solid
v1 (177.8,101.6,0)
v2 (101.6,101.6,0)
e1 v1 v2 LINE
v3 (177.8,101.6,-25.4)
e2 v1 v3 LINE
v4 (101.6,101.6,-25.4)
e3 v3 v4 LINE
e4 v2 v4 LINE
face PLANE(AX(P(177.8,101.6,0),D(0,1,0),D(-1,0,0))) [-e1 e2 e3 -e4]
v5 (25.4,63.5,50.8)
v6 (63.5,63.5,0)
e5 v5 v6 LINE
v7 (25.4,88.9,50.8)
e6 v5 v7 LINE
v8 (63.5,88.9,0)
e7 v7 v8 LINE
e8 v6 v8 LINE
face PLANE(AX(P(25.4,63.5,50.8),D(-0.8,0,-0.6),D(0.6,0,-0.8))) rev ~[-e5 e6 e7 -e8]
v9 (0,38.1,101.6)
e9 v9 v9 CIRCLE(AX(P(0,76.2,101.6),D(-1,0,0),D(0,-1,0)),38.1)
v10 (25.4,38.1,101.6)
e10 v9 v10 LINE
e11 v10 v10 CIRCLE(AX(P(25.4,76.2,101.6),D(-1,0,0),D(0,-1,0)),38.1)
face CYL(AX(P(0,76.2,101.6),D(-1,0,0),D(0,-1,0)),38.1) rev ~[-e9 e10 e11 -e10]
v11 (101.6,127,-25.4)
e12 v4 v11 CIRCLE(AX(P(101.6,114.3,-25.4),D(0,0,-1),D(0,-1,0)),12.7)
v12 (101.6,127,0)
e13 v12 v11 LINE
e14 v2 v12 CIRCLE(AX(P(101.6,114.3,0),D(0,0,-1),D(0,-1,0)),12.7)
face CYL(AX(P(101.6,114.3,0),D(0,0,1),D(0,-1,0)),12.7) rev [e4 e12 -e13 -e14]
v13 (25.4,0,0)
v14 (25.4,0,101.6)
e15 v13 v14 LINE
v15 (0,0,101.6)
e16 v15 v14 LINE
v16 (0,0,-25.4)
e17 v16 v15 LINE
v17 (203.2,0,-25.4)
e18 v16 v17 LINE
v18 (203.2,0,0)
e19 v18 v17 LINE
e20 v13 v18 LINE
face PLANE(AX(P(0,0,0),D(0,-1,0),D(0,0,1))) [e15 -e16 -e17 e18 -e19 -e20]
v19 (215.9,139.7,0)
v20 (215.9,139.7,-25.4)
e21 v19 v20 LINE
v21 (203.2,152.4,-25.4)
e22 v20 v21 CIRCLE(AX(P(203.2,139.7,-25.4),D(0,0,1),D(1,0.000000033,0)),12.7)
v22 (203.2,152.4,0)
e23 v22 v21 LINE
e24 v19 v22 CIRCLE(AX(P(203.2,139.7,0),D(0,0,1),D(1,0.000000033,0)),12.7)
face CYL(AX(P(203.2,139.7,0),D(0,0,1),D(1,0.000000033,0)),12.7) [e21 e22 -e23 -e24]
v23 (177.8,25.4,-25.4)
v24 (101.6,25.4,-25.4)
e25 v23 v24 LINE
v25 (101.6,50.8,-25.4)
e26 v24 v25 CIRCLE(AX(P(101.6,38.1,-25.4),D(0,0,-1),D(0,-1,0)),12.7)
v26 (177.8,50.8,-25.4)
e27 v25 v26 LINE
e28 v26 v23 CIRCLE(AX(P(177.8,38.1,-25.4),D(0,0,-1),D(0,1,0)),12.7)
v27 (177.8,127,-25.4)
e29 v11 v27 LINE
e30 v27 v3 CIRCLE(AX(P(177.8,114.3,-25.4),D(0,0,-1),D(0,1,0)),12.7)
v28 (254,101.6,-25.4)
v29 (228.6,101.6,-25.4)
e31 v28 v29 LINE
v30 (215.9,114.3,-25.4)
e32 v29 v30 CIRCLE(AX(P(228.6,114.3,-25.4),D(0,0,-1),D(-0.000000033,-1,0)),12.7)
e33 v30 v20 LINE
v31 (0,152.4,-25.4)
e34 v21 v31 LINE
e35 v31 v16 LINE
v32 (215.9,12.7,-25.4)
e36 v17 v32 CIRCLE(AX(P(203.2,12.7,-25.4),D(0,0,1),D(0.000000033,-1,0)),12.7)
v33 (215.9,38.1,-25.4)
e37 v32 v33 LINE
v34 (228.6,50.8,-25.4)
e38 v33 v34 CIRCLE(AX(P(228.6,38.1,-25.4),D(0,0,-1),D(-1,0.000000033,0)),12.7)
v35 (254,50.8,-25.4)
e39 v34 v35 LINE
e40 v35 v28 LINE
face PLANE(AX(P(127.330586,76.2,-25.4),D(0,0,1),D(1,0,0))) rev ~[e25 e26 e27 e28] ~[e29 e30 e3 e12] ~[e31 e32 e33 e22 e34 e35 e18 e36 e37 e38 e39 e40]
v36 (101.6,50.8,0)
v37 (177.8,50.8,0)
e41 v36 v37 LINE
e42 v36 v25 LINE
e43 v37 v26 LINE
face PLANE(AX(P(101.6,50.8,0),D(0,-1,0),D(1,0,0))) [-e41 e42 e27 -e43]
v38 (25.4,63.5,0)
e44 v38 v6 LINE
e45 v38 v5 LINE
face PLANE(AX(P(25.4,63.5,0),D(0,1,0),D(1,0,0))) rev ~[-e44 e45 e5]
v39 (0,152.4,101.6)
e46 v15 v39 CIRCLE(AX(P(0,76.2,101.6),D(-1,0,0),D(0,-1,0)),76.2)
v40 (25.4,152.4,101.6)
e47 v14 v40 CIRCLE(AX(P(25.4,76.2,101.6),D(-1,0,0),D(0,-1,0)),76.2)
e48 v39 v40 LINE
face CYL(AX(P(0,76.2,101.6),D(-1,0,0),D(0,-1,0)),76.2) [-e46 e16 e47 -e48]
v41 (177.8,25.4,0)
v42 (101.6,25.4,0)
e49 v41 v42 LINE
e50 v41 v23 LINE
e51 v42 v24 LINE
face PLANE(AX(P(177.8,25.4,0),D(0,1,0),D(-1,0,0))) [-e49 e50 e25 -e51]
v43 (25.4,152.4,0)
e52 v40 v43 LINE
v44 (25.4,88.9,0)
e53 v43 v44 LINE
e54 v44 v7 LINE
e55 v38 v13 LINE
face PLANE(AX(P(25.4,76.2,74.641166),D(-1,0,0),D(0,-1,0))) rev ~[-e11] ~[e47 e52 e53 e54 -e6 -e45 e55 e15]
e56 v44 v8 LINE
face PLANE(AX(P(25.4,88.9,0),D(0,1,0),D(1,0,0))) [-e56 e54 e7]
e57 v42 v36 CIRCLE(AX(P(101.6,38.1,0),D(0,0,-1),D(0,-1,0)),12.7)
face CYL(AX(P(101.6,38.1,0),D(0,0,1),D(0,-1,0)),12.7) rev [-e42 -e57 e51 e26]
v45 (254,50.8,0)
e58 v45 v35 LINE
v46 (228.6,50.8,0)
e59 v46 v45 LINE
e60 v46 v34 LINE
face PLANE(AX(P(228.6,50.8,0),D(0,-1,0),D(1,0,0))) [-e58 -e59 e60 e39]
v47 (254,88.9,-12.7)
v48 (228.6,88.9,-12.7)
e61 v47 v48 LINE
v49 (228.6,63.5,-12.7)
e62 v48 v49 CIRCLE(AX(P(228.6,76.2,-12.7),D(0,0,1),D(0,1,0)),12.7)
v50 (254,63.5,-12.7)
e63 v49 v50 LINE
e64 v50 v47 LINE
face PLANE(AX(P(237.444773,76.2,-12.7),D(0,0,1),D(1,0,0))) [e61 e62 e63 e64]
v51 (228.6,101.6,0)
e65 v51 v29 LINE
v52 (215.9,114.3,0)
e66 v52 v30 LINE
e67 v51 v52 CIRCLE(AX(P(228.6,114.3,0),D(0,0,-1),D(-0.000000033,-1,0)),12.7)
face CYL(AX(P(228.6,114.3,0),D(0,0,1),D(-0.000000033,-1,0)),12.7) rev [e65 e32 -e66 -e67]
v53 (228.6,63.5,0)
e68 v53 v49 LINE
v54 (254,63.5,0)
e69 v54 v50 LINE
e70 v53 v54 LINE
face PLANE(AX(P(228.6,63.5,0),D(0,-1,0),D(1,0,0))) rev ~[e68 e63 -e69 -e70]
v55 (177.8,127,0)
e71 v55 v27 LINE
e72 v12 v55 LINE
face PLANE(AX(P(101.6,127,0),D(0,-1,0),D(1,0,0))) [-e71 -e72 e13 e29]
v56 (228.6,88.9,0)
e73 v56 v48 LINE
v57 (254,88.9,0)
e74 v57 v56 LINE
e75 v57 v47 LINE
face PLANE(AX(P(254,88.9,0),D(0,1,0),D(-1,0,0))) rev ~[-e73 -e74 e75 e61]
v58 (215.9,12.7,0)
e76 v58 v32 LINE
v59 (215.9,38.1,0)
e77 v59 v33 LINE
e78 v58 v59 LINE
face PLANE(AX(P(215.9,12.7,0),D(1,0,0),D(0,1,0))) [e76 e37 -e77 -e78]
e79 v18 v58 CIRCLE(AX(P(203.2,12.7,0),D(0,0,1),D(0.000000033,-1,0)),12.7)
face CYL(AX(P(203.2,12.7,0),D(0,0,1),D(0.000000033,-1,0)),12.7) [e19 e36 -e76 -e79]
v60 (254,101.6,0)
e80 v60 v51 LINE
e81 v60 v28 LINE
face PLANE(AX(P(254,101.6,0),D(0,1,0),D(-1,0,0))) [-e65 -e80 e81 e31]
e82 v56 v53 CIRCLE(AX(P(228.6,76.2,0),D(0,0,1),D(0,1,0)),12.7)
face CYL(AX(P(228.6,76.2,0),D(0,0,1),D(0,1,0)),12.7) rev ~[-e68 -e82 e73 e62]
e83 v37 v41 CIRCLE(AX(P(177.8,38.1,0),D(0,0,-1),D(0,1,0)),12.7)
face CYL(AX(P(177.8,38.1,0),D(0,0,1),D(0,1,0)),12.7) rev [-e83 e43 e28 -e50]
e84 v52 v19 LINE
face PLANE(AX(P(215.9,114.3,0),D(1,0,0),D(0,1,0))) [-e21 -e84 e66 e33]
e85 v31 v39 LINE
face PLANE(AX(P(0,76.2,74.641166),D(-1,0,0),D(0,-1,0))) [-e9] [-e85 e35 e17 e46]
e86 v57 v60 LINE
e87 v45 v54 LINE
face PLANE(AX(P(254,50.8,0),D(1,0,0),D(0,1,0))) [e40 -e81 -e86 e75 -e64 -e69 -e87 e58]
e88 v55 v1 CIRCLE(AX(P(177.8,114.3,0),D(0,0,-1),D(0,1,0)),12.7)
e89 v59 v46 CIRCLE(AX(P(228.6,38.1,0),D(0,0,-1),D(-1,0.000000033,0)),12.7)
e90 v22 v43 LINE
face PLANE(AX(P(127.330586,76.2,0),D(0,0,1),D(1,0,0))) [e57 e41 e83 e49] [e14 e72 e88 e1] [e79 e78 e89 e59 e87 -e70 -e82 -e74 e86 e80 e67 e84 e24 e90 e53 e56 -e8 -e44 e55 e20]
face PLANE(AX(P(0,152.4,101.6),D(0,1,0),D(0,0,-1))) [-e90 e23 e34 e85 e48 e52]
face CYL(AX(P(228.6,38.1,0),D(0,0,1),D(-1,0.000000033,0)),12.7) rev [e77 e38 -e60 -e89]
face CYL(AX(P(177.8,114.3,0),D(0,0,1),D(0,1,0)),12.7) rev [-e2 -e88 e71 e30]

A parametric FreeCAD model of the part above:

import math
import FreeCAD as App
import Part
import Sketcher
from FreeCAD import Vector
Q = App.Units.Quantity


def add_polygon(sketch, points):
    """Adds a closed chain of lines whose ends are joined by coincident constraints."""
    first, n = sketch.GeometryCount, len(points)
    for a, b in zip(points, points[1:] + points[:1]):
        sketch.addGeometry(Part.LineSegment(App.Vector(*a, 0), App.Vector(*b, 0)), False)
    for i in range(n):
        sketch.addConstraint(Sketcher.Constraint("Coincident", first + i, 2, first + (i + 1) % n, 1))

doc = App.newDocument("Part")
params = doc.addObject("Spreadsheet::Sheet", "Params")
for row, (alias, value) in enumerate([
    ("sketch1_radius", "0.5 in"),
    ("sketch1_width", "8 in"),
    ("sketch1_width2", "1 in"),
    ("sketch1_width3", "3 in"),
    ("sketch1_height", "6 in"),
    ("pad1_length", "1 in"),
    ("sketch2_diameter", "3 in"),
    ("sketch2_radius", "3 in"),
    ("sketch2_height", "4 in"),
    ("pad2_length", "1 in"),
    ("sketch3_radius", "0.5 in"),
    ("pocket1_length", "0.5 in"),
    ("sketch4_height", "1 in"),
    ("sketch4_width", "1.5 in"),
    ("pad3_length", "2 in"),
    ("sketch5_height", "2 in"),
    ("sketch5_width", "1.5 in"),
    ("pocket2_length", "1 in"),
], start=1):
    params.set(f"A{row}", alias)
    params.set(f"B{row}", "=" + value)
    params.setAlias(f"B{row}", alias)

body = doc.addObject("PartDesign::Body", "Body")

# Sketch on XY plane
sketch1 = body.newObject("Sketcher::SketchObject", "Sketch")
sketch1.AttachmentSupport = (doc.getObject("XY_Plane"), [""])
sketch1.MapMode = "FlatFace"
sketch1.addGeometry([
    Part.LineSegment(Vector(0, 152, 0), Vector(0, 0, 0)),  # 0
    Part.LineSegment(Vector(0, 0, 0), Vector(203, 0, 0)),  # 1
    Part.ArcOfCircle(Part.Circle(Vector(203, 13, 0), Vector(0, 0, 1), 13), math.radians(-90), math.radians(0)),  # 2
    Part.LineSegment(Vector(216, 13, 0), Vector(216, 38, 0)),  # 3
    Part.ArcOfCircle(Part.Circle(Vector(229, 38, 0), Vector(0, 0, 1), 13), math.radians(90), math.radians(180)),  # 4
    Part.LineSegment(Vector(229, 51, 0), Vector(254, 51, 0)),  # 5
    Part.LineSegment(Vector(254, 51, 0), Vector(254, 102, 0)),  # 6
    Part.LineSegment(Vector(254, 102, 0), Vector(229, 102, 0)),  # 7
    Part.ArcOfCircle(Part.Circle(Vector(229, 114, 0), Vector(0, 0, 1), 13), math.radians(-180), math.radians(-90)),  # 8
    Part.LineSegment(Vector(216, 114, 0), Vector(216, 140, 0)),  # 9
    Part.ArcOfCircle(Part.Circle(Vector(203, 140, 0), Vector(0, 0, 1), 13), math.radians(0), math.radians(90)),  # 10
    Part.LineSegment(Vector(203, 152, 0), Vector(0, 152, 0)),  # 11
    Part.LineSegment(Vector(102, 51, 0), Vector(178, 51, 0)),  # 12
    Part.ArcOfCircle(Part.Circle(Vector(178, 38, 0), Vector(0, 0, 1), 13), math.radians(-90), math.radians(90)),  # 13
    Part.LineSegment(Vector(178, 25, 0), Vector(102, 25, 0)),  # 14
    Part.ArcOfCircle(Part.Circle(Vector(102, 38, 0), Vector(0, 0, 1), 13), math.radians(90), math.radians(270)),  # 15
    Part.LineSegment(Vector(102, 127, 0), Vector(178, 127, 0)),  # 16
    Part.ArcOfCircle(Part.Circle(Vector(178, 114, 0), Vector(0, 0, 1), 13), math.radians(-90), math.radians(90)),  # 17
    Part.LineSegment(Vector(178, 102, 0), Vector(102, 102, 0)),  # 18
    Part.ArcOfCircle(Part.Circle(Vector(102, 114, 0), Vector(0, 0, 1), 13), math.radians(90), math.radians(270)),  # 19
], False)
sketch1.addConstraint([
    Sketcher.Constraint("Coincident", 0, 2, 1, 1),
    Sketcher.Constraint("Tangent", 1, 2, 2, 1),
    Sketcher.Constraint("Tangent", 2, 2, 3, 1),
    Sketcher.Constraint("Tangent", 3, 2, 4, 2),
    Sketcher.Constraint("Tangent", 4, 1, 5, 1),
    Sketcher.Constraint("Coincident", 5, 2, 6, 1),
    Sketcher.Constraint("Coincident", 6, 2, 7, 1),
    Sketcher.Constraint("Tangent", 7, 2, 8, 2),
    Sketcher.Constraint("Tangent", 8, 1, 9, 1),
    Sketcher.Constraint("Tangent", 9, 2, 10, 1),
    Sketcher.Constraint("Tangent", 10, 2, 11, 1),
    Sketcher.Constraint("Coincident", 11, 2, 0, 1),
    Sketcher.Constraint("Tangent", 12, 2, 13, 2),
    Sketcher.Constraint("Tangent", 13, 1, 14, 1),
    Sketcher.Constraint("Tangent", 14, 2, 15, 2),
    Sketcher.Constraint("Tangent", 15, 1, 12, 1),
    Sketcher.Constraint("Tangent", 16, 2, 17, 2),
    Sketcher.Constraint("Tangent", 17, 1, 18, 1),
    Sketcher.Constraint("Tangent", 18, 2, 19, 2),
    Sketcher.Constraint("Tangent", 19, 1, 16, 1),
    Sketcher.Constraint("Vertical", 0),
    Sketcher.Constraint("Horizontal", 1),
    Sketcher.Constraint("Vertical", 3),
    Sketcher.Constraint("Horizontal", 5),
    Sketcher.Constraint("Vertical", 6),
    Sketcher.Constraint("Horizontal", 7),
    Sketcher.Constraint("Vertical", 9),
    Sketcher.Constraint("Horizontal", 11),
    Sketcher.Constraint("Horizontal", 12),
    Sketcher.Constraint("Horizontal", 14),
    Sketcher.Constraint("Horizontal", 16),
    Sketcher.Constraint("Horizontal", 18),
    Sketcher.Constraint("Coincident", 0, 2, -1, 1),
    Sketcher.Constraint("Equal", 2, 4),
    Sketcher.Constraint("Equal", 4, 8),
    Sketcher.Constraint("Equal", 8, 10),
    Sketcher.Constraint("Equal", 10, 13),
    Sketcher.Constraint("Equal", 15, 17),
    Sketcher.Constraint("Horizontal", 4, 3, 13, 3),
    Sketcher.Constraint("Horizontal", 8, 3, 17, 3),
    Sketcher.Constraint("Vertical", 4, 3, 8, 3),
    Sketcher.Constraint("Vertical", 13, 3, 17, 3),
    Sketcher.Constraint("Vertical", 15, 3, 19, 3),
    Sketcher.Constraint("Equal", 7, 3),
    Sketcher.Constraint("Equal", 3, 9),
    Sketcher.Constraint("Radius", 2, Q("0.5 in")),
    Sketcher.Constraint("DistanceX", 1, 1, 1, 2, Q("8 in")),
    Sketcher.Constraint("DistanceX", 5, 1, 5, 2, Q("1 in")),
    Sketcher.Constraint("DistanceX", 12, 1, 12, 2, Q("3 in")),
    Sketcher.Constraint("DistanceY", 0, 2, 0, 1, Q("6 in")),
    Sketcher.Constraint("DistanceX", -1, 1, 13, 3, Q("7 in")),
])
sketch1.setExpression("Constraints[45]", "Params.sketch1_radius")
sketch1.setExpression("Constraints[46]", "Params.sketch1_width")
sketch1.setExpression("Constraints[47]", "Params.sketch1_width2")
sketch1.setExpression("Constraints[48]", "Params.sketch1_width3")
sketch1.setExpression("Constraints[49]", "Params.sketch1_height")
pad1 = body.newObject("PartDesign::Pad", "Pad")
pad1.Profile = sketch1
pad1.setExpression("Length", "Params.pad1_length")
pad1.Reversed = True

# Sketch on YZ plane
sketch2 = body.newObject("Sketcher::SketchObject", "Sketch001")
sketch2.AttachmentSupport = (doc.getObject("YZ_Plane"), [""])
sketch2.MapMode = "FlatFace"
sketch2.addGeometry([
    Part.LineSegment(Vector(152, 102, 0), Vector(152, 0, 0)),  # 0
    Part.LineSegment(Vector(152, 0, 0), Vector(0, 0, 0)),  # 1
    Part.LineSegment(Vector(0, 0, 0), Vector(0, 102, 0)),  # 2
    Part.ArcOfCircle(Part.Circle(Vector(76, 102, 0), Vector(0, 0, 1), 76), math.radians(0), math.radians(180)),  # 3
    Part.Circle(Vector(76, 102, 0), Vector(0, 0, 1), 38),  # 4
], False)
sketch2.addConstraint([
    Sketcher.Constraint("Coincident", 0, 2, 1, 1),
    Sketcher.Constraint("Coincident", 1, 2, 2, 1),
    Sketcher.Constraint("Tangent", 2, 2, 3, 2),
    Sketcher.Constraint("Tangent", 3, 1, 0, 1),
    Sketcher.Constraint("Vertical", 0),
    Sketcher.Constraint("Horizontal", 1),
    Sketcher.Constraint("Vertical", 2),
    Sketcher.Constraint("Coincident", 1, 2, -1, 1),
    Sketcher.Constraint("Coincident", 4, 3, 3, 3),
    Sketcher.Constraint("Diameter", 4, Q("3 in")),
    Sketcher.Constraint("Radius", 3, Q("3 in")),
    Sketcher.Constraint("DistanceY", 0, 2, 0, 1, Q("4 in")),
])
sketch2.setExpression("Constraints[9]", "Params.sketch2_diameter")
sketch2.setExpression("Constraints[10]", "Params.sketch2_radius")
sketch2.setExpression("Constraints[11]", "Params.sketch2_height")
pad2 = body.newObject("PartDesign::Pad", "Pad001")
pad2.Profile = sketch2
pad2.setExpression("Length", "Params.pad2_length")

# Sketch on XY plane
sketch3 = body.newObject("Sketcher::SketchObject", "Sketch002")
sketch3.AttachmentSupport = (doc.getObject("XY_Plane"), [""])
sketch3.MapMode = "FlatFace"
sketch3.addGeometry([
    Part.LineSegment(Vector(229, 64, 0), Vector(254, 64, 0)),
    Part.LineSegment(Vector(254, 64, 0), Vector(254, 89, 0)),
    Part.LineSegment(Vector(254, 89, 0), Vector(229, 89, 0)),
    Part.ArcOfCircle(Part.Circle(Vector(229, 76, 0), Vector(0, 0, 1), 13), math.radians(90), math.radians(270)),
], False)
sketch3.addConstraint([
    Sketcher.Constraint("Coincident", 0, 2, 1, 1),
    Sketcher.Constraint("Coincident", 1, 2, 2, 1),
    Sketcher.Constraint("Tangent", 2, 2, 3, 1),
    Sketcher.Constraint("Tangent", 3, 2, 0, 1),
    Sketcher.Constraint("Horizontal", 0),
    Sketcher.Constraint("Vertical", 1),
    Sketcher.Constraint("Horizontal", 2),
    Sketcher.Constraint("Equal", 2, 1),
    Sketcher.Constraint("Radius", 3, Q("0.5 in")),
    Sketcher.Constraint("DistanceX", -1, 1, 3, 3, Q("9 in")),
    Sketcher.Constraint("DistanceY", -1, 1, 3, 3, Q("3 in")),
])
sketch3.setExpression("Constraints[8]", "Params.sketch3_radius")
pocket1 = body.newObject("PartDesign::Pocket", "Pocket")
pocket1.Profile = sketch3
pocket1.setExpression("Length", "Params.pocket1_length")

# Sketch on XY plane
sketch4 = body.newObject("Sketcher::SketchObject", "Sketch003")
sketch4.AttachmentSupport = (doc.getObject("XY_Plane"), [""])
sketch4.MapMode = "FlatFace"
add_polygon(sketch4, [(25, 89), (25, 64), (64, 64), (64, 89)])  # lines 0-3
sketch4.addConstraint([
    Sketcher.Constraint("Vertical", 0),
    Sketcher.Constraint("Horizontal", 1),
    Sketcher.Constraint("Vertical", 2),
    Sketcher.Constraint("Horizontal", 3),
    Sketcher.Constraint("DistanceY", 0, 2, 0, 1, Q("1 in")),
    Sketcher.Constraint("DistanceX", 1, 1, 1, 2, Q("1.5 in")),
    Sketcher.Constraint("DistanceX", -1, 1, 0, 2, Q("1 in")),
    Sketcher.Constraint("DistanceY", -1, 1, 0, 2, Q("2.5 in")),
])
sketch4.setExpression("Constraints[8]", "Params.sketch4_height")
sketch4.setExpression("Constraints[9]", "Params.sketch4_width")
pad3 = body.newObject("PartDesign::Pad", "Pad002")
pad3.Profile = sketch4
pad3.setExpression("Length", "Params.pad3_length")

# Sketch on XZ plane
sketch5 = body.newObject("Sketcher::SketchObject", "Sketch004")
sketch5.AttachmentSupport = (doc.getObject("XZ_Plane"), [""])
sketch5.MapMode = "FlatFace"
sketch5.AttachmentOffset = App.Placement(Vector(0, 0, -2.5 * 25.4), App.Rotation())
add_polygon(sketch5, [(25, 51), (64, 0), (64, 51)])  # lines 0-2
sketch5.addConstraint([
    Sketcher.Constraint("Vertical", 1),
    Sketcher.Constraint("Horizontal", 2),
    Sketcher.Constraint("PointOnObject", 0, 2, -1),
    Sketcher.Constraint("DistanceY", 1, 1, 1, 2, Q("2 in")),
    Sketcher.Constraint("DistanceX", 2, 2, 2, 1, Q("1.5 in")),
    Sketcher.Constraint("DistanceX", -1, 1, 2, 2, Q("1 in")),
])
sketch5.setExpression("Constraints[6]", "Params.sketch5_height")
sketch5.setExpression("Constraints[7]", "Params.sketch5_width")
pocket2 = body.newObject("PartDesign::Pocket", "Pocket001")
pocket2.Profile = sketch5
pocket2.setExpression("Length", "Params.pocket2_length")

doc.recompute()
